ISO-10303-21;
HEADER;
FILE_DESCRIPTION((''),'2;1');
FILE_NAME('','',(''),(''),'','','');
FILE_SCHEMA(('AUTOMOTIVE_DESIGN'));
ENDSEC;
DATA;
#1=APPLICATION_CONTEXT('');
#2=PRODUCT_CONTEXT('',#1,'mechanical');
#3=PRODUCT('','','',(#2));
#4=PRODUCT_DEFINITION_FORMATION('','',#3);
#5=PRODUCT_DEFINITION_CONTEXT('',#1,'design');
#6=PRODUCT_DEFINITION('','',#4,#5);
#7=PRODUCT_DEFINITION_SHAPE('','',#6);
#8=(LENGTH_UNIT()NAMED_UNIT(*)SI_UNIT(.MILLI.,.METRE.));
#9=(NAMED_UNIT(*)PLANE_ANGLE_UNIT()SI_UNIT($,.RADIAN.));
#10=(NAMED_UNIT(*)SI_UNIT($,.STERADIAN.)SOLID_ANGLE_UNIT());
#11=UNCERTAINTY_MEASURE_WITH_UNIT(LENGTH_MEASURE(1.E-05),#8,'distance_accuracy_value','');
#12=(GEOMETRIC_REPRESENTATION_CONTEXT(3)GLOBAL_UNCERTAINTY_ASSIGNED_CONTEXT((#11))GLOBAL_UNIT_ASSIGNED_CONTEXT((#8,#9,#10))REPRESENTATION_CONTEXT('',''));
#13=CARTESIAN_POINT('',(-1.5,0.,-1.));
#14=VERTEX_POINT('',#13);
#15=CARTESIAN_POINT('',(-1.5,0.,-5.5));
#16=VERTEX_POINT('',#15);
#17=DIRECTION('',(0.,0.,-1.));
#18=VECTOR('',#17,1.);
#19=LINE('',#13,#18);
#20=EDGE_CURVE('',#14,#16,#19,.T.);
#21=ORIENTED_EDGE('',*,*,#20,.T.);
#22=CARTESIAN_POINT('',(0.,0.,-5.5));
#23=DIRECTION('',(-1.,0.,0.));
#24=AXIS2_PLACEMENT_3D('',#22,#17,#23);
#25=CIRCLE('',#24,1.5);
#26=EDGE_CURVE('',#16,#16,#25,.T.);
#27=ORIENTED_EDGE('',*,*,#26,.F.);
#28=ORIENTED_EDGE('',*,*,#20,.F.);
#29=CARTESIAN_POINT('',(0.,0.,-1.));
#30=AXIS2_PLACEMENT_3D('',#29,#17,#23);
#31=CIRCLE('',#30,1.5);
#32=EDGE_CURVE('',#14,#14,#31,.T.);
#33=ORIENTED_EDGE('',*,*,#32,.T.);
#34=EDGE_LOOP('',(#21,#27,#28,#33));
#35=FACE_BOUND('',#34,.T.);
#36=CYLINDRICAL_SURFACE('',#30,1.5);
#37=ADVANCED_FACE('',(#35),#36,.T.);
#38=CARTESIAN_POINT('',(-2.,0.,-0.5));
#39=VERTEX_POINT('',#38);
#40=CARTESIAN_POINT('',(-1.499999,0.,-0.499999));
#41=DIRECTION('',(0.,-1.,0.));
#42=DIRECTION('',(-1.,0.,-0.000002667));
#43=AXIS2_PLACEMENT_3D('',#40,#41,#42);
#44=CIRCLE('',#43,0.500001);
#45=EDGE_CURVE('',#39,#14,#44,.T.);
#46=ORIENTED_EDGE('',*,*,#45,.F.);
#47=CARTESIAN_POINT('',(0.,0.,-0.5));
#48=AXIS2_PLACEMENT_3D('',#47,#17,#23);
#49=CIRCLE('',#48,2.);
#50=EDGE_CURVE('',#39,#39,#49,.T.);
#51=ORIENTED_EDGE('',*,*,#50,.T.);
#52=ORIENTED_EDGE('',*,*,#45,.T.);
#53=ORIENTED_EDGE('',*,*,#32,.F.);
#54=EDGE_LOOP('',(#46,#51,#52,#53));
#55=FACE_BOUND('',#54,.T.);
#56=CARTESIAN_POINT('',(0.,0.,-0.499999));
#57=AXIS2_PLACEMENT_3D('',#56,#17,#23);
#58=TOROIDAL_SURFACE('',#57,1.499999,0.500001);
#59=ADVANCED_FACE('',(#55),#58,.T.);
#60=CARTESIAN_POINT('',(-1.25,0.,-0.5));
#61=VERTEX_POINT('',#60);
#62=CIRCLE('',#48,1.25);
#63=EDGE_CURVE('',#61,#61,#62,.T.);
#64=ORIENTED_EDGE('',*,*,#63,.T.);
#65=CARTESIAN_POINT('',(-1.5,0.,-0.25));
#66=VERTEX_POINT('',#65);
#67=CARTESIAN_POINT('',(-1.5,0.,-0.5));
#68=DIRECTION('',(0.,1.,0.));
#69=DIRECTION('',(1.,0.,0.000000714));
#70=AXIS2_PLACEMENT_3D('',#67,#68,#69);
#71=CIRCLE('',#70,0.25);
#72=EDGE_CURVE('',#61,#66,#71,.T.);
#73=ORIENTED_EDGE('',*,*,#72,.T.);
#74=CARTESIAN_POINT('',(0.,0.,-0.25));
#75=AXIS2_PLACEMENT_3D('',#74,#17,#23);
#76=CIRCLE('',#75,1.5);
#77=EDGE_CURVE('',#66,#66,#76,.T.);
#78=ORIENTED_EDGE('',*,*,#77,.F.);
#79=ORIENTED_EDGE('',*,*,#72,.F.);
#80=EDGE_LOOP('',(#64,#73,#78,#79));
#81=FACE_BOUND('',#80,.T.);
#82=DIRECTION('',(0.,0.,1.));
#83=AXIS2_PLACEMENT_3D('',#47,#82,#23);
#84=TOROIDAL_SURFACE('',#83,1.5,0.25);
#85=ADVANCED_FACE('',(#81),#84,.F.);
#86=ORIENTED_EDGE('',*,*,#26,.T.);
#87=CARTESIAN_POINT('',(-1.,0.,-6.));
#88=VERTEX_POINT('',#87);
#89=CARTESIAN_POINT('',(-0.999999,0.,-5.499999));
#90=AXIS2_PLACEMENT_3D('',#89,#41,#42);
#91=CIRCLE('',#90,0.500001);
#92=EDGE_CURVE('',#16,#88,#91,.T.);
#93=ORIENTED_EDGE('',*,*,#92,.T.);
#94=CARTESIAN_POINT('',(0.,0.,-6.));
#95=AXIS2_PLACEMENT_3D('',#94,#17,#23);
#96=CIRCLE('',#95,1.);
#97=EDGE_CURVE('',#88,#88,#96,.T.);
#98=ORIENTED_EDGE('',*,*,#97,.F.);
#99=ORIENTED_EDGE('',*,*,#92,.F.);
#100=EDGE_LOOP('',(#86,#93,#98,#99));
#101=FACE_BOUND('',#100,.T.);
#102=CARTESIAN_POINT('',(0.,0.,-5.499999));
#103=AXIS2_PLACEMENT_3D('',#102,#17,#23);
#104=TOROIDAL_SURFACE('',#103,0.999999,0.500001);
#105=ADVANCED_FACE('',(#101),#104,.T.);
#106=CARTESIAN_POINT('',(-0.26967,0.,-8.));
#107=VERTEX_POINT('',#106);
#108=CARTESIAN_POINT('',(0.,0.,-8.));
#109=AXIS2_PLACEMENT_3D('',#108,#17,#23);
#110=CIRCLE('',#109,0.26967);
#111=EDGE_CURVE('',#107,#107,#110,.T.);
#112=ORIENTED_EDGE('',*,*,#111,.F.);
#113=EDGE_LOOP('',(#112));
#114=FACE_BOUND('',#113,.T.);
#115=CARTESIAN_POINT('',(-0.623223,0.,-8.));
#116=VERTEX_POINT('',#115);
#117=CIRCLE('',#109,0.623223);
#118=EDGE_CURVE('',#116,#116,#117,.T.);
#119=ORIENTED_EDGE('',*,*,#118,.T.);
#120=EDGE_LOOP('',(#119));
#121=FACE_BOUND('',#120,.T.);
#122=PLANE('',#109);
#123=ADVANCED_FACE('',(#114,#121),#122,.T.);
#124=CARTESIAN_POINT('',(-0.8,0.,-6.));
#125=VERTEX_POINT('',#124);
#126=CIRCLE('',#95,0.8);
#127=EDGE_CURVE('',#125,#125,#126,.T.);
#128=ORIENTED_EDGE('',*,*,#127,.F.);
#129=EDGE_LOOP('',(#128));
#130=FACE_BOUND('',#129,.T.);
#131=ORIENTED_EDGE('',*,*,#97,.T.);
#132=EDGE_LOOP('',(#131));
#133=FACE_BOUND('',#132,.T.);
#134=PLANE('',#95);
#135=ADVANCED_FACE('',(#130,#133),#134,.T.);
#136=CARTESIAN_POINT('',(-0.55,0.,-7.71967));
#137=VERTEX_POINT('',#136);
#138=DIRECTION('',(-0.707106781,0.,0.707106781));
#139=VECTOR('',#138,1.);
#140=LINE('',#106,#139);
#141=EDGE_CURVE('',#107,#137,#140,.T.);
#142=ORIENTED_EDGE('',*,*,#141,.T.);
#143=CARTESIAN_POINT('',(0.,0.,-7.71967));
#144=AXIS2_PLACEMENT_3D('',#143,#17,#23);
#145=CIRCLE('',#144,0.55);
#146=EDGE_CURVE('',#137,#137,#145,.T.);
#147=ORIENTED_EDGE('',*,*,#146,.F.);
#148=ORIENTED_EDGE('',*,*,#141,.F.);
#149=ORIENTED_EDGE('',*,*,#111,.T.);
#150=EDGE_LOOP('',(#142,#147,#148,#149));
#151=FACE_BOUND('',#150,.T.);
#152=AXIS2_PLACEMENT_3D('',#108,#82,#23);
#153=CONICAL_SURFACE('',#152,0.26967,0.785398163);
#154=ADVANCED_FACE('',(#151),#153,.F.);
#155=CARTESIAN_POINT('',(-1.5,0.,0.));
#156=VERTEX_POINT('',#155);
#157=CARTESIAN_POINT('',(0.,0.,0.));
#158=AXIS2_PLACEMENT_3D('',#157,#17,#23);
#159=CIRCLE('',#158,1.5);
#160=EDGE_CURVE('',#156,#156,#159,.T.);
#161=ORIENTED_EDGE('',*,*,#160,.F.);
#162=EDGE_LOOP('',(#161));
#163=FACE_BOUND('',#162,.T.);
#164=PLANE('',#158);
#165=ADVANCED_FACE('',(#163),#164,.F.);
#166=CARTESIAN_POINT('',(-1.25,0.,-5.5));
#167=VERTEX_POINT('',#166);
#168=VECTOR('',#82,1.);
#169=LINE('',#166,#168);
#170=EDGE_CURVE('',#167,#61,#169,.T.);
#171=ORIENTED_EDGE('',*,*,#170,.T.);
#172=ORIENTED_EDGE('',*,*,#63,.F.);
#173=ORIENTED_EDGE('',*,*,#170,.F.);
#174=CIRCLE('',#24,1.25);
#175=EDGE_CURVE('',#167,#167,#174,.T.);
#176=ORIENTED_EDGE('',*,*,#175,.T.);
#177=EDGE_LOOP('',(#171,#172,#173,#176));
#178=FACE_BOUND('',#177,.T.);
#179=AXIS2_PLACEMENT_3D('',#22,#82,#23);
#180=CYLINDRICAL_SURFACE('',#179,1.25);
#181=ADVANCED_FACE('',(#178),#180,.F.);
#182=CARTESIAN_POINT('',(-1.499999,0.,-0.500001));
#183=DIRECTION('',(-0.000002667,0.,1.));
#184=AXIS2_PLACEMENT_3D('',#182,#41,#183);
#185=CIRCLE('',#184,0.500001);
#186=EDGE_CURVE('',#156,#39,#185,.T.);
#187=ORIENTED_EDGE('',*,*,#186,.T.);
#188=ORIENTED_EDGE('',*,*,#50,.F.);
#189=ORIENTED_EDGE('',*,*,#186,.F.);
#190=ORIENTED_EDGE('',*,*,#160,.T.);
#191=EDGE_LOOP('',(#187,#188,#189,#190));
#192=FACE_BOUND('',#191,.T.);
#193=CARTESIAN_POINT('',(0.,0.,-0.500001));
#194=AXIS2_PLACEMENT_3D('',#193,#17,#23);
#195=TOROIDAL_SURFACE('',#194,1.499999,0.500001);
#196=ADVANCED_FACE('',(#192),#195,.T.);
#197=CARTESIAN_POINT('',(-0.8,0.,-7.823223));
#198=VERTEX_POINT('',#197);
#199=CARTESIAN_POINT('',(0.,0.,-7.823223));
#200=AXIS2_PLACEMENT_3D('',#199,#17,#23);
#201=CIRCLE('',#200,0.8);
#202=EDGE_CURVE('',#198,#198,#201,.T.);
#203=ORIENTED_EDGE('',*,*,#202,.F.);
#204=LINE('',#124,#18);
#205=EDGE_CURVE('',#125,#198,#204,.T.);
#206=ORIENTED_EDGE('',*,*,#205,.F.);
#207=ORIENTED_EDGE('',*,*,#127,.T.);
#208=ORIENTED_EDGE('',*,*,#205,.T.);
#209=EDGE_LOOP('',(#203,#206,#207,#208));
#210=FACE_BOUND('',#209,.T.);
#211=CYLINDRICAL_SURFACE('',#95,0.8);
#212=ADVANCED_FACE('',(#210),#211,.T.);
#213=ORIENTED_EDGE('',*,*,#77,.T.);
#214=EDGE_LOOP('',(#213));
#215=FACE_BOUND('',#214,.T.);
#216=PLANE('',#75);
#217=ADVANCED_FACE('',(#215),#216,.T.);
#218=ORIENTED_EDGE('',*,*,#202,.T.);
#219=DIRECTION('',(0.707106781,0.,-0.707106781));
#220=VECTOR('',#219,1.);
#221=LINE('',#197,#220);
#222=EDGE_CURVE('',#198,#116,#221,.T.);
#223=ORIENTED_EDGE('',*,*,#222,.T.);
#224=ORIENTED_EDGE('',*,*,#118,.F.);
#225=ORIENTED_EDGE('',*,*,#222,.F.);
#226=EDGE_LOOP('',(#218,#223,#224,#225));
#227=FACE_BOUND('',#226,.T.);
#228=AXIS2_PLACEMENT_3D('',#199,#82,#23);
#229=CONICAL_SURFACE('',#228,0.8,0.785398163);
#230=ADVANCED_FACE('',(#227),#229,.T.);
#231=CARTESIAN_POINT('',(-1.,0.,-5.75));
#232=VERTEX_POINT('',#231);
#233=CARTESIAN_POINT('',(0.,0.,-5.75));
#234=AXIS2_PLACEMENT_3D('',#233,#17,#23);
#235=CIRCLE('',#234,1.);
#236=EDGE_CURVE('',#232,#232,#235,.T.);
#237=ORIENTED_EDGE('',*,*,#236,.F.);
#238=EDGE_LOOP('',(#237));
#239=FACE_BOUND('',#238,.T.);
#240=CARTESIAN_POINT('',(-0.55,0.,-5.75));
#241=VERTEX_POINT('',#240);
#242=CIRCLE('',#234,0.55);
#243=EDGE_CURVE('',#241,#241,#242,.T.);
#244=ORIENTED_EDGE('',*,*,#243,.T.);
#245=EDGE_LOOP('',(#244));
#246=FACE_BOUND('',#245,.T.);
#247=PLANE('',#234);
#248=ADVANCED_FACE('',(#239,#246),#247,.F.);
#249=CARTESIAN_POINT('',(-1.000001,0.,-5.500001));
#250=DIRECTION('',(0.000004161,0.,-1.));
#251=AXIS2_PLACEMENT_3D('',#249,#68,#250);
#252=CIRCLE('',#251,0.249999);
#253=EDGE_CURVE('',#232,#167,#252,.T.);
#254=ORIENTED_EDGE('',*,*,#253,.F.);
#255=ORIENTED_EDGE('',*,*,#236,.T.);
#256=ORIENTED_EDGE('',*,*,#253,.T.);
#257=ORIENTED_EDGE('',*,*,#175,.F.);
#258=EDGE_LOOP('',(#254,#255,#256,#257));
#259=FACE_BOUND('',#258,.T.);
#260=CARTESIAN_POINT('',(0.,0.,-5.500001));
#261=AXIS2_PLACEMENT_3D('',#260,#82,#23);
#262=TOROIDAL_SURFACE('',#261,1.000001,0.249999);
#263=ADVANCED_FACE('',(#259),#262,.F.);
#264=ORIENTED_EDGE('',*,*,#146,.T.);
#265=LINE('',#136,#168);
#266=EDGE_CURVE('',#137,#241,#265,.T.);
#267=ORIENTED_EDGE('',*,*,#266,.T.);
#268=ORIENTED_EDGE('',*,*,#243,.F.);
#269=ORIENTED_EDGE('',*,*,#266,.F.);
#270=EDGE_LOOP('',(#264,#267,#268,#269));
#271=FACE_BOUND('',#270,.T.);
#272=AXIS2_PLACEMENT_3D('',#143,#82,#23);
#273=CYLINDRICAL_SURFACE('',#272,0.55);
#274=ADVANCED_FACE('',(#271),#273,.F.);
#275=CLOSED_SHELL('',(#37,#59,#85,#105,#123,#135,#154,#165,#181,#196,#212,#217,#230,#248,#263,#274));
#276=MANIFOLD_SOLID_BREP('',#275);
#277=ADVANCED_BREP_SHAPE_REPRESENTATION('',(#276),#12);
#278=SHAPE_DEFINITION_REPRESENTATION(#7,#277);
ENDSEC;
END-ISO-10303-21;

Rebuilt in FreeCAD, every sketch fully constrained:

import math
import FreeCAD as App
import Part
import Sketcher
from FreeCAD import Vector
Q = App.Units.Quantity

doc = App.newDocument("Part")
body = doc.addObject("PartDesign::Body", "Body")

sketch1 = body.newObject("Sketcher::SketchObject", "Sketch")
sketch1.AttachmentSupport = (doc.getObject("XZ_Plane"), [""])
sketch1.MapMode = "FlatFace"
sketch1.addGeometry([
    Part.LineSegment(Vector(0, -0.25, 0), Vector(0, 0, 0)),
    Part.LineSegment(Vector(0, 0, 0), Vector(-1.5, 0, 0)),
    Part.ArcOfCircle(Part.Circle(Vector(-1.499999, -0.500001, 0), Vector(0, 0, 1), 0.500001), math.radians(90.000153), math.radians(179.999847)),
    Part.ArcOfCircle(Part.Circle(Vector(-1.499999, -0.499999, 0), Vector(0, 0, 1), 0.500001), math.radians(-179.999847), math.radians(-90.000153)),
    Part.LineSegment(Vector(-1.5, -1, 0), Vector(-1.5, -5.5, 0)),
    Part.ArcOfCircle(Part.Circle(Vector(-0.999999, -5.499999, 0), Vector(0, 0, 1), 0.500001), math.radians(-179.999847), math.radians(-90.000153)),
    Part.LineSegment(Vector(-1, -6, 0), Vector(-0.8, -6, 0)),
    Part.LineSegment(Vector(-0.8, -6, 0), Vector(-0.8, -7.823223, 0)),
    Part.LineSegment(Vector(-0.8, -7.823223, 0), Vector(-0.623223, -8, 0)),
    Part.LineSegment(Vector(-0.623223, -8, 0), Vector(-0.26967, -8, 0)),
    Part.LineSegment(Vector(-0.26967, -8, 0), Vector(-0.55, -7.71967, 0)),
    Part.LineSegment(Vector(-0.55, -7.71967, 0), Vector(-0.55, -5.75, 0)),
    Part.LineSegment(Vector(-0.55, -5.75, 0), Vector(-1, -5.75, 0)),
    Part.ArcOfCircle(Part.Circle(Vector(-1.000001, -5.500001, 0), Vector(0, 0, 1), 0.249999), math.radians(179.999762), math.radians(270.000238)),
    Part.LineSegment(Vector(-1.25, -5.5, 0), Vector(-1.25, -0.5, 0)),
    Part.ArcOfCircle(Part.Circle(Vector(-1.5, -0.5, 0), Vector(0, 0, 1), 0.25), math.radians(89.999959), math.radians(360.000041)),
    Part.LineSegment(Vector(-1.5, -0.25, 0), Vector(0, -0.25, 0)),
], False)
sketch1.addConstraint([
    Sketcher.Constraint("Coincident", 0, 2, 1, 1),
    Sketcher.Constraint("Coincident", 1, 2, 2, 1),
    Sketcher.Constraint("Coincident", 2, 2, 3, 1),
    Sketcher.Constraint("Coincident", 3, 2, 4, 1),
    Sketcher.Constraint("Coincident", 4, 2, 5, 1),
    Sketcher.Constraint("Coincident", 5, 2, 6, 1),
    Sketcher.Constraint("Coincident", 6, 2, 7, 1),
    Sketcher.Constraint("Coincident", 7, 2, 8, 1),
    Sketcher.Constraint("Coincident", 8, 2, 9, 1),
    Sketcher.Constraint("Coincident", 9, 2, 10, 1),
    Sketcher.Constraint("Coincident", 10, 2, 11, 1),
    Sketcher.Constraint("Coincident", 11, 2, 12, 1),
    Sketcher.Constraint("Coincident", 12, 2, 13, 2),
    Sketcher.Constraint("Coincident", 13, 1, 14, 1),
    Sketcher.Constraint("Tangent", 14, 2, 15, 2),
    Sketcher.Constraint("Tangent", 15, 1, 16, 1),
    Sketcher.Constraint("Coincident", 16, 2, 0, 1),
    Sketcher.Constraint("Vertical", 0),
    Sketcher.Constraint("Horizontal", 1),
    Sketcher.Constraint("Vertical", 4),
    Sketcher.Constraint("Horizontal", 6),
    Sketcher.Constraint("Vertical", 7),
    Sketcher.Constraint("Horizontal", 9),
    Sketcher.Constraint("Vertical", 11),
    Sketcher.Constraint("Horizontal", 12),
    Sketcher.Constraint("Vertical", 14),
    Sketcher.Constraint("Horizontal", 16),
    Sketcher.Constraint("Coincident", 0, 2, -1, 1),
    Sketcher.Constraint("Coincident", 3, 3, 2, 3),
    Sketcher.Constraint("Coincident", 13, 3, 5, 3),
    Sketcher.Constraint("Coincident", 15, 3, 2, 3),
    Sketcher.Constraint("Equal", 3, 5),
    Sketcher.Constraint("Equal", 13, 15),
    Sketcher.Constraint("Parallel", 8, 10),
    Sketcher.Constraint("Horizontal", 15, 3, 2, 2),
    Sketcher.Constraint("Horizontal", 13, 3, 4, 2),
    Sketcher.Constraint("Horizontal", 4, 2, 13, 1),
    Sketcher.Constraint("Vertical", 15, 3, 1, 2),
    Sketcher.Constraint("Vertical", 1, 2, 3, 2),
    Sketcher.Constraint("Vertical", 13, 3, 5, 2),
    Sketcher.Constraint("Vertical", 5, 2, 12, 2),
    Sketcher.Constraint("Radius", 2, 0.500001),
    Sketcher.Constraint("DistanceY", 14, 1, 14, 2, 5.0),
    Sketcher.Constraint("Angle", 8, Q("-45 deg")),
    Sketcher.Constraint("DistanceX", 1, 2, 1, 1, 1.5),
    Sketcher.Constraint("DistanceX", 6, 1, 6, 2, 0.2),
    Sketcher.Constraint("DistanceY", 8, 2, -1, 1, 8.0),
    Sketcher.Constraint("DistanceX", 12, 2, 12, 1, 0.45),
    Sketcher.Constraint("Distance", 8, 0.25),
    Sketcher.Constraint("DistanceY", 11, 1, 11, 2, 1.96967),
])
revolution = body.newObject("PartDesign::Revolution", "Revolution")
revolution.Profile = sketch1
revolution.ReferenceAxis = (sketch1, ["V_Axis"])
revolution.Angle = 360

doc.recompute()
